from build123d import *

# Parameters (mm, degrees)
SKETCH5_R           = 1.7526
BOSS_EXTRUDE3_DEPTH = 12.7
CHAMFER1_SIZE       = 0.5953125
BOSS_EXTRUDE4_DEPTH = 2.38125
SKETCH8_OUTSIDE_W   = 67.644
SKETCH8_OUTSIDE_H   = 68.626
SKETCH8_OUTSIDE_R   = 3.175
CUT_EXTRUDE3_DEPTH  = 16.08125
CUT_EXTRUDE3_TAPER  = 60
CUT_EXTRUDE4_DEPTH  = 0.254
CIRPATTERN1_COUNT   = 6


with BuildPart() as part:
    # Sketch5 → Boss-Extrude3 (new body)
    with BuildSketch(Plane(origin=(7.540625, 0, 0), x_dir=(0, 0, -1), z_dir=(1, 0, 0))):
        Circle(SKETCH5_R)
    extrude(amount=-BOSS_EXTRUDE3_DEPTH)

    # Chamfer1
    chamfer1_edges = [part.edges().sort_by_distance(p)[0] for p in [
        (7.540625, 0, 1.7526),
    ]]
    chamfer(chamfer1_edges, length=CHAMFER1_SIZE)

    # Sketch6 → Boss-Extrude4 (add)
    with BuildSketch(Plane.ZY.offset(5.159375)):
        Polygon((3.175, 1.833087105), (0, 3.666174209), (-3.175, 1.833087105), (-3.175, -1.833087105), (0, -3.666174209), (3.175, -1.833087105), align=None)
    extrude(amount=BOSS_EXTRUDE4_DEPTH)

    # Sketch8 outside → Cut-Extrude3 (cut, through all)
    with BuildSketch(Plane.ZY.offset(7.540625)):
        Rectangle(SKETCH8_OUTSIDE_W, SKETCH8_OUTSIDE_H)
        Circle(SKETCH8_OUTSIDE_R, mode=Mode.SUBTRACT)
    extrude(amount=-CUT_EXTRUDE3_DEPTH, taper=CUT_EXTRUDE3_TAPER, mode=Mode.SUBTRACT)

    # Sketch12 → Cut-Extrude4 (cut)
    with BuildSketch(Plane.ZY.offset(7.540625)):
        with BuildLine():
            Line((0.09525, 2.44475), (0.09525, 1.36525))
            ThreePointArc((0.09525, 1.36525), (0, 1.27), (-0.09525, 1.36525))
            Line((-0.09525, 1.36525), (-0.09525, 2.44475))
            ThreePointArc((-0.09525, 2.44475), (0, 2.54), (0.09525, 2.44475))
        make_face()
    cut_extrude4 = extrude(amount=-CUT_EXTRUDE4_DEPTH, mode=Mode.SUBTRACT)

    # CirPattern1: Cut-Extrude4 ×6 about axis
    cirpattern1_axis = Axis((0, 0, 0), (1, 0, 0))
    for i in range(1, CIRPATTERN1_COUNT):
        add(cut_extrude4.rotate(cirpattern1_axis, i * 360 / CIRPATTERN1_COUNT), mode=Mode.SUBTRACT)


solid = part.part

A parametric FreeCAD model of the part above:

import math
import FreeCAD as App
import Part
import Sketcher

V = App.Vector
Q = App.Units.Quantity


def edges_at(feature, points):
    """Names of the edges that pass closest to the given points."""
    edges = feature.Shape.Edges
    near = lambda p: min(range(len(edges)), key=lambda i: edges[i].distToShape(Part.Vertex(*p))[0])
    return sorted({f"Edge{near(p) + 1}" for p in points})


def add_polygon(sketch, points):
    """Adds a closed chain of lines whose ends are joined by coincident constraints."""
    first, n = sketch.GeometryCount, len(points)
    for a, b in zip(points, points[1:] + points[:1]):
        sketch.addGeometry(Part.LineSegment(App.Vector(*a, 0), App.Vector(*b, 0)), False)
    for i in range(n):
        sketch.addConstraint(Sketcher.Constraint("Coincident", first + i, 2, first + (i + 1) % n, 1))

doc = App.newDocument("Part")
params = doc.addObject("Spreadsheet::Sheet", "Params")
for row, (alias, value) in enumerate([
    ("sketch1_diameter", "0.138 in"),
    ("pad1_length", "0.5 in"),
    ("chamfer_size", "0.595313 mm"),
    ("pad2_length", "0.09375 in"),
    ("sketch3_diameter", "0.25 in"),
    ("pocket1_length", "16.08125 mm"),
    ("pocket1_taper", "60 deg"),
    ("pocket2_length", "0.01 in"),
], start=1):
    params.set(f"A{row}", alias)
    params.set(f"B{row}", "=" + value)
    params.setAlias(f"B{row}", alias)

body = doc.addObject("PartDesign::Body", "Body")

# Sketch on YZ plane
sketch1 = body.newObject("Sketcher::SketchObject", "Sketch")
sketch1.AttachmentSupport = (doc.getObject("YZ_Plane"), [""])
sketch1.MapMode = "FlatFace"
sketch1.AttachmentOffset = App.Placement(V(0, 0, 0.296875 * 25.4), App.Rotation())
sketch1.addGeometry(Part.Circle(V(0, 0, 0), V(0, 0, 1), 1.8), False)
sketch1.addConstraint([
    Sketcher.Constraint("Coincident", 0, 3, -1, 1),
    Sketcher.Constraint("Diameter", 0, Q("0.138 in")),
])
sketch1.setExpression("Constraints[1]", "Params.sketch1_diameter")
pad1 = body.newObject("PartDesign::Pad", "Pad")
pad1.Profile = sketch1
pad1.setExpression("Length", "Params.pad1_length")
pad1.Reversed = True
doc.recompute()

chamfer = body.newObject("PartDesign::Chamfer", "Chamfer")
chamfer.Base = (pad1, edges_at(pad1, [(7.541, 0, 1.753)]))
chamfer.setExpression("Size", "Params.chamfer_size")

# Sketch on YZ plane
sketch2 = body.newObject("Sketcher::SketchObject", "Sketch001")
sketch2.AttachmentSupport = (doc.getObject("YZ_Plane"), [""])
sketch2.MapMode = "FlatFace"
sketch2.AttachmentOffset = App.Placement(V(0, 0, -0.203125 * 25.4), App.Rotation())
add_polygon(sketch2, [(1.8, 3.2), (3.7, 0), (1.8, -3.2), (-1.8, -3.2), (-3.7, 0), (-1.8, 3.2)])  # lines 0-5
sketch2.addConstraint([
    Sketcher.Constraint("Horizontal", 2),
    Sketcher.Constraint("Horizontal", 5),
    Sketcher.Constraint("Symmetric", 0, 2, 3, 2, -1, 1),
    Sketcher.Constraint("Symmetric", 1, 2, 4, 2, -1, 1),
    Sketcher.Constraint("PointOnObject", 0, 2, -1),
    Sketcher.Constraint("Parallel", 0, 3),
    Sketcher.Constraint("Vertical", 2, 2, 4, 2),
    Sketcher.Constraint("Angle", 0, Q("-60 deg")),
    Sketcher.Constraint("DistanceY", 2, 2, 4, 2, Q("0.25 in")),
    Sketcher.Constraint("DistanceX", 2, 2, 2, 1, 3.666174),
])
pad2 = body.newObject("PartDesign::Pad", "Pad001")
pad2.Profile = sketch2
pad2.setExpression("Length", "Params.pad2_length")
pad2.Reversed = True

# Sketch on YZ plane
sketch3 = body.newObject("Sketcher::SketchObject", "Sketch002")
sketch3.AttachmentSupport = (doc.getObject("YZ_Plane"), [""])
sketch3.MapMode = "FlatFace"
sketch3.AttachmentOffset = App.Placement(V(0, 0, -0.296875 * 25.4), App.Rotation())
add_polygon(sketch3, [(34.3, -33.8), (-34.3, -33.8), (-34.3, 33.8), (34.3, 33.8)])  # lines 0-3
sketch3.addGeometry(Part.Circle(V(0, 0, 0), V(0, 0, 1), 3.2), False)  # 4
sketch3.addConstraint([
    Sketcher.Constraint("Horizontal", 0),
    Sketcher.Constraint("Vertical", 1),
    Sketcher.Constraint("Horizontal", 2),
    Sketcher.Constraint("Vertical", 3),
    Sketcher.Constraint("Coincident", 4, 3, -1, 1),
    Sketcher.Constraint("Symmetric", 0, 2, 2, 2, -1, 1),
    Sketcher.Constraint("Diameter", 4, Q("0.25 in")),
    Sketcher.Constraint("DistanceX", 0, 2, 0, 1, 68.626),
    Sketcher.Constraint("DistanceY", 1, 1, 1, 2, 67.644),
])
sketch3.setExpression("Constraints[10]", "Params.sketch3_diameter")
pocket1 = body.newObject("PartDesign::Pocket", "Pocket")
pocket1.Profile = sketch3
pocket1.setExpression("Length", "Params.pocket1_length")
pocket1.Reversed = True
pocket1.setExpression("TaperAngle", "Params.pocket1_taper")

# Sketch on YZ plane
sketch4 = body.newObject("Sketcher::SketchObject", "Sketch003")
sketch4.AttachmentSupport = (doc.getObject("YZ_Plane"), [""])
sketch4.MapMode = "FlatFace"
sketch4.AttachmentOffset = App.Placement(V(0, 0, -0.296875 * 25.4), App.Rotation())
sketch4.addGeometry([
    Part.LineSegment(V(1.37, 0.1, 0), V(2.44, 0.1, 0)),
    Part.ArcOfCircle(Part.Circle(V(2.44, 0, 0), V(0, 0, 1), 0.1), math.radians(-90), math.radians(90)),
    Part.LineSegment(V(2.44, -0.1, 0), V(1.37, -0.1, 0)),
    Part.ArcOfCircle(Part.Circle(V(1.37, 0, 0), V(0, 0, 1), 0.1), math.radians(90), math.radians(270)),
], False)
sketch4.addConstraint([
    Sketcher.Constraint("Tangent", 0, 2, 1, 2),
    Sketcher.Constraint("Tangent", 1, 1, 2, 1),
    Sketcher.Constraint("Tangent", 2, 2, 3, 2),
    Sketcher.Constraint("Tangent", 3, 1, 0, 1),
    Sketcher.Constraint("Horizontal", 0),
    Sketcher.Constraint("Horizontal", 2),
    Sketcher.Constraint("PointOnObject", 1, 3, -1),
    Sketcher.Constraint("DistanceX", 0, 1, 0, 2, Q("0.0425 in")),
    Sketcher.Constraint("Radius", 1, 0.09525),
    Sketcher.Constraint("DistanceX", -1, 1, 1, 3, 2.44475),
])
pocket2 = body.newObject("PartDesign::Pocket", "Pocket001")
pocket2.Profile = sketch4
pocket2.setExpression("Length", "Params.pocket2_length")
pocket2.Reversed = True
doc.recompute()

polarpattern = body.newObject("PartDesign::PolarPattern", "PolarPattern")
polarpattern.Originals = [pocket2]
polarpattern.Axis = (doc.getObject("X_Axis"), [""])
polarpattern.Angle = 360
polarpattern.Occurrences = 6
body.Tip = polarpattern

doc.recompute()
